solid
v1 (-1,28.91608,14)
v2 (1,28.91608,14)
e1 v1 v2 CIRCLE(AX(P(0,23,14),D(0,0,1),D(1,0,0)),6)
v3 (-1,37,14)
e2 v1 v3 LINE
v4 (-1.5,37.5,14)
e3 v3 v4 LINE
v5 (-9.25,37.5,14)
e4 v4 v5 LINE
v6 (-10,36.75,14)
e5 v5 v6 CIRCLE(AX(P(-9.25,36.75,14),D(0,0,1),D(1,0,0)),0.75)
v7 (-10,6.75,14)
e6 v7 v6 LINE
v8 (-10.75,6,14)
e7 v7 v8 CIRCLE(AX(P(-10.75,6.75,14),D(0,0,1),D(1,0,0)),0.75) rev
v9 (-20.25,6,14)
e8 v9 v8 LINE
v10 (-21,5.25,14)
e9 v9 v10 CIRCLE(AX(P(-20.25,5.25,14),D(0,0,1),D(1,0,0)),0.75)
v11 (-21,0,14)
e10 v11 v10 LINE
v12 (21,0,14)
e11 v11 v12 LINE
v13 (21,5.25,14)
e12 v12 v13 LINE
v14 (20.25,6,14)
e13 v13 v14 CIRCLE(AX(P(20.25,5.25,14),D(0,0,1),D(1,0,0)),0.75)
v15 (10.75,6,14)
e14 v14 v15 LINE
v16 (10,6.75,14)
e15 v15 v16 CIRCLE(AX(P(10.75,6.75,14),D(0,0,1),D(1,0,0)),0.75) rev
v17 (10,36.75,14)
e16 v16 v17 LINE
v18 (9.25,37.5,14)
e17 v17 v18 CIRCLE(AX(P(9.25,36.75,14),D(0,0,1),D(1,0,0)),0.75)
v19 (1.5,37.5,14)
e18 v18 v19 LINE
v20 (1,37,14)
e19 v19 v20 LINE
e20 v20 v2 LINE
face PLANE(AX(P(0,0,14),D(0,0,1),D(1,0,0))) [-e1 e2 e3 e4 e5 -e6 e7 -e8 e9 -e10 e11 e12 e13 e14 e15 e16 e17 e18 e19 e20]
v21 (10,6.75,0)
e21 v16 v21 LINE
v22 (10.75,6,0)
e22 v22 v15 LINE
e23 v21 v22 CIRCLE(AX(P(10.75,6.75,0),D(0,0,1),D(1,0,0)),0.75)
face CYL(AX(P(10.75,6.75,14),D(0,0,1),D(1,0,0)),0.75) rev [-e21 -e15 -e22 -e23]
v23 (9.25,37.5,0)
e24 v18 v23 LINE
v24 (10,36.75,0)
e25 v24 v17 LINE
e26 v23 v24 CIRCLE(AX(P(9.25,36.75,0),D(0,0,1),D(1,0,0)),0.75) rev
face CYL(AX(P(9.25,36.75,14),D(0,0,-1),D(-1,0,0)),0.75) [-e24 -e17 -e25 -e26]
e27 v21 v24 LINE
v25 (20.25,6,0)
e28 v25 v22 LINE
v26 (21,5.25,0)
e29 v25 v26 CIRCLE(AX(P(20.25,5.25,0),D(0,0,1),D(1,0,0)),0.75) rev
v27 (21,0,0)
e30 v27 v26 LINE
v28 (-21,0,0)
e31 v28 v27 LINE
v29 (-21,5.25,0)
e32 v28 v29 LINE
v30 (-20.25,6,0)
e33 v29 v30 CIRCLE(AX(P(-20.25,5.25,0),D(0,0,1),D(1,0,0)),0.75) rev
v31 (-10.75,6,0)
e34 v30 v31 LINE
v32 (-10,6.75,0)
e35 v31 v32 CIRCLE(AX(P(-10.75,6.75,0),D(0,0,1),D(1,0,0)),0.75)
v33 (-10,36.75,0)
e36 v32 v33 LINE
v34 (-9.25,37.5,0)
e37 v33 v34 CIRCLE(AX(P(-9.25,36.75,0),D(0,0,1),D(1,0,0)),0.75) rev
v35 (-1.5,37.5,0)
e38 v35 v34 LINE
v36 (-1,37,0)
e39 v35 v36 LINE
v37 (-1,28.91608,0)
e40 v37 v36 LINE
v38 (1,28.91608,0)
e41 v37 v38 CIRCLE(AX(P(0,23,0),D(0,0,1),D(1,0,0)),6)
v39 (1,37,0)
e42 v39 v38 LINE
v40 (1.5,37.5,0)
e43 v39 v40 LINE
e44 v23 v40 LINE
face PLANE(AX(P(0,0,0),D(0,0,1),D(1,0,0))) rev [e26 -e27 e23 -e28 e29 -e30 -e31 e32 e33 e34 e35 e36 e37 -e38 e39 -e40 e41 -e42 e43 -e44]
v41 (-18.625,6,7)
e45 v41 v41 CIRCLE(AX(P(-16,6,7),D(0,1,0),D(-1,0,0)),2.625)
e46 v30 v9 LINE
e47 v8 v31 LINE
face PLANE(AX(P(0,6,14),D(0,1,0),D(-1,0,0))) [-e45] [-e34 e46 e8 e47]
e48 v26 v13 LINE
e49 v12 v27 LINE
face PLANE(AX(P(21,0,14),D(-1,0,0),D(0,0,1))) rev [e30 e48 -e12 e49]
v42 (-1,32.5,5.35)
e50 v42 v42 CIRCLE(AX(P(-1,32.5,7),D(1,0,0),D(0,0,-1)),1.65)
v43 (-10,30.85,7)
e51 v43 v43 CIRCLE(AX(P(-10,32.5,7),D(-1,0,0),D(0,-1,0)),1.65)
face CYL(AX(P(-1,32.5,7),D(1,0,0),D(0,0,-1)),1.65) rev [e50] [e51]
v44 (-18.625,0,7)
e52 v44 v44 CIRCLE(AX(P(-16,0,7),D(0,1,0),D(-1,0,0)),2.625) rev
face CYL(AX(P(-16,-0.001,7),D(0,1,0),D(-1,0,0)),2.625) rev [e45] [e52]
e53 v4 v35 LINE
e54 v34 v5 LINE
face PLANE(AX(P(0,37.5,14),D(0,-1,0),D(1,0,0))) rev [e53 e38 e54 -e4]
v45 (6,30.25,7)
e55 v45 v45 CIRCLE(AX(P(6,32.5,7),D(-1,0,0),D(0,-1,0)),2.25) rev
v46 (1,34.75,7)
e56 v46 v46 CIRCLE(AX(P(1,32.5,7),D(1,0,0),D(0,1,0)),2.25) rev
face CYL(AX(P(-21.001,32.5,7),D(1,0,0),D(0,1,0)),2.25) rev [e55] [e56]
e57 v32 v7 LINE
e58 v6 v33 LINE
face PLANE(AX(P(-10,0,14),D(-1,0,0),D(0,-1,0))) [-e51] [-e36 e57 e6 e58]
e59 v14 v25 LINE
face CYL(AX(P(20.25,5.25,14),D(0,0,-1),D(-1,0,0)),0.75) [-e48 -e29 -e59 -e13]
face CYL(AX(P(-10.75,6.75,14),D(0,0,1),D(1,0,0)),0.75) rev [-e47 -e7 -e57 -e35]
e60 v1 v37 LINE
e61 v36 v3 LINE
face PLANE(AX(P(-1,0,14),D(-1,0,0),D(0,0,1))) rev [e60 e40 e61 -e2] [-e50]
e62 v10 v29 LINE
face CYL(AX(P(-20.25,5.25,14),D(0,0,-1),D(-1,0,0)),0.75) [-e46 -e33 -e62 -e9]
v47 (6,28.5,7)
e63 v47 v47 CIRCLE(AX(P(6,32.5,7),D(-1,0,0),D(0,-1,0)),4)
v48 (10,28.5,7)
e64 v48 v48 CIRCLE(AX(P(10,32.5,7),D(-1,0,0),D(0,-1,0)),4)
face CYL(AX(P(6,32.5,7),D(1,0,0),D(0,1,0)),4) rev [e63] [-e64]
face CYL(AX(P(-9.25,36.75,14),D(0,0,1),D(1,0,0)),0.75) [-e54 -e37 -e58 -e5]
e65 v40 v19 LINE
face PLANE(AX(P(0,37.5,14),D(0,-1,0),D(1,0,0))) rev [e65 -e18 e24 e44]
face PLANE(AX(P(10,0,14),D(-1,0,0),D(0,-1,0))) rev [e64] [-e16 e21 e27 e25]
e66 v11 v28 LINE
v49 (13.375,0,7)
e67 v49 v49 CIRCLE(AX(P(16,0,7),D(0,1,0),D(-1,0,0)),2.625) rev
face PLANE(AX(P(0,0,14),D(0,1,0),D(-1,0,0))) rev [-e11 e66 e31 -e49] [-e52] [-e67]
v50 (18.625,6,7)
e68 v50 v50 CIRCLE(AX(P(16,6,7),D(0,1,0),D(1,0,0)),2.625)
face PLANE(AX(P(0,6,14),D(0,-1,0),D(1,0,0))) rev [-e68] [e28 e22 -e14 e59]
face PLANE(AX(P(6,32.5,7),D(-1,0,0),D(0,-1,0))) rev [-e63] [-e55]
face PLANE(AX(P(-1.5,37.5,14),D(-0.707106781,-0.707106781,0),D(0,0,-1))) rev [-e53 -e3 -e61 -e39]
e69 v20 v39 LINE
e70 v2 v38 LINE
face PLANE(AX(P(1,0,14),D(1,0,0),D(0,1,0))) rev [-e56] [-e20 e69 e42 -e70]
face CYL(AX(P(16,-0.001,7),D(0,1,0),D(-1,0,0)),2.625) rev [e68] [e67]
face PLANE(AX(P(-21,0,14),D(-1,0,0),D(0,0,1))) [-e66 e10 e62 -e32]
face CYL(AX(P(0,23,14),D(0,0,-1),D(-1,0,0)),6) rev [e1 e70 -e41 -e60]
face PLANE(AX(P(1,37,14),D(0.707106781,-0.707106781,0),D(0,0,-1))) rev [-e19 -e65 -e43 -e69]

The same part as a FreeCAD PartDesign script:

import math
import FreeCAD as App
import Part
import Sketcher
from FreeCAD import Vector
Q = App.Units.Quantity


def edges_at(feature, points):
    """Names of the edges that pass closest to the given points."""
    edges = feature.Shape.Edges
    near = lambda p: min(range(len(edges)), key=lambda i: edges[i].distToShape(Part.Vertex(*p))[0])
    return sorted({f"Edge{near(p) + 1}" for p in points})

doc = App.newDocument("Part")
body = doc.addObject("PartDesign::Body", "Body")

# Sketch on XY plane
sketch1 = body.newObject("Sketcher::SketchObject", "Sketch")
sketch1.AttachmentSupport = (doc.getObject("XY_Plane"), [""])
sketch1.MapMode = "FlatFace"
sketch1.addGeometry([
    Part.LineSegment(Vector(-21, 6, 0), Vector(-21, 0, 0)),  # 0
    Part.LineSegment(Vector(-21, 0, 0), Vector(21, 0, 0)),  # 1
    Part.LineSegment(Vector(21, 0, 0), Vector(21, 6, 0)),  # 2
    Part.LineSegment(Vector(21, 6, 0), Vector(10, 6, 0)),  # 3
    Part.LineSegment(Vector(10, 6, 0), Vector(10, 37.5, 0)),  # 4
    Part.LineSegment(Vector(10, 37.5, 0), Vector(1, 37.5, 0)),  # 5
    Part.LineSegment(Vector(1, 37.5, 0), Vector(1, 28.9, 0)),  # 6
    Part.ArcOfCircle(Part.Circle(Vector(0, 23, 0), Vector(0, 0, 1), 6), math.radians(100), math.radians(440)),  # 7
    Part.LineSegment(Vector(-1, 28.9, 0), Vector(-1, 37.5, 0)),  # 8
    Part.LineSegment(Vector(-1, 37.5, 0), Vector(-10, 37.5, 0)),  # 9
    Part.LineSegment(Vector(-10, 37.5, 0), Vector(-10, 6, 0)),  # 10
    Part.LineSegment(Vector(-10, 6, 0), Vector(-21, 6, 0)),  # 11
], False)
sketch1.addConstraint([
    Sketcher.Constraint("Coincident", 0, 2, 1, 1),
    Sketcher.Constraint("Coincident", 1, 2, 2, 1),
    Sketcher.Constraint("Coincident", 2, 2, 3, 1),
    Sketcher.Constraint("Coincident", 3, 2, 4, 1),
    Sketcher.Constraint("Coincident", 4, 2, 5, 1),
    Sketcher.Constraint("Coincident", 5, 2, 6, 1),
    Sketcher.Constraint("Coincident", 6, 2, 7, 2),
    Sketcher.Constraint("Coincident", 7, 1, 8, 1),
    Sketcher.Constraint("Coincident", 8, 2, 9, 1),
    Sketcher.Constraint("Coincident", 9, 2, 10, 1),
    Sketcher.Constraint("Coincident", 10, 2, 11, 1),
    Sketcher.Constraint("Coincident", 11, 2, 0, 1),
    Sketcher.Constraint("Vertical", 0),
    Sketcher.Constraint("Horizontal", 1),
    Sketcher.Constraint("Vertical", 2),
    Sketcher.Constraint("Horizontal", 3),
    Sketcher.Constraint("Vertical", 4),
    Sketcher.Constraint("Horizontal", 5),
    Sketcher.Constraint("Vertical", 6),
    Sketcher.Constraint("Vertical", 8),
    Sketcher.Constraint("Horizontal", 9),
    Sketcher.Constraint("Vertical", 10),
    Sketcher.Constraint("Horizontal", 11),
    Sketcher.Constraint("Symmetric", 0, 2, 1, 2, -1, 1),
    Sketcher.Constraint("Symmetric", 6, 2, 7, 1, -2),
    Sketcher.Constraint("Symmetric", 4, 2, 9, 2, -2),
    Sketcher.Constraint("Horizontal", 3, 2, 10, 2),
    Sketcher.Constraint("Radius", 7, Q("6 mm")),
    Sketcher.Constraint("DistanceX", 1, 1, 1, 2, Q("42 mm")),
    Sketcher.Constraint("DistanceX", 3, 2, 3, 1, Q("11 mm")),
    Sketcher.Constraint("DistanceX", 5, 2, 5, 1, Q("9 mm")),
    Sketcher.Constraint("DistanceY", 0, 2, 0, 1, Q("6 mm")),
    Sketcher.Constraint("DistanceY", 4, 1, 4, 2, Q("31.5 mm")),
    Sketcher.Constraint("DistanceY", -1, 1, 7, 3, Q("23 mm")),
])
pad1 = body.newObject("PartDesign::Pad", "Pad")
pad1.Profile = sketch1
pad1.Length = 14

# Sketch on XZ plane
sketch2 = body.newObject("Sketcher::SketchObject", "Sketch001")
sketch2.AttachmentSupport = (doc.getObject("XZ_Plane"), [""])
sketch2.MapMode = "FlatFace"
sketch2.AttachmentOffset = App.Placement(Vector(0, 0, -32.5), App.Rotation())
sketch2.addGeometry([
    Part.LineSegment(Vector(-21, 7, 0), Vector(-1, 7, 0)),
    Part.LineSegment(Vector(-1, 7, 0), Vector(-1, 5.3, 0)),
    Part.LineSegment(Vector(-1, 5.3, 0), Vector(-21, 5.3, 0)),
    Part.LineSegment(Vector(-21, 5.3, 0), Vector(-21, 7, 0)),
], False)
sketch2.addGeometry(Part.LineSegment(Vector(-1, 7, 0), Vector(-21, 7, 0)), True)  # axis
sketch2.addConstraint([
    Sketcher.Constraint("Coincident", 0, 2, 1, 1),
    Sketcher.Constraint("Coincident", 1, 2, 2, 1),
    Sketcher.Constraint("Coincident", 2, 2, 3, 1),
    Sketcher.Constraint("Coincident", 3, 2, 0, 1),
    Sketcher.Constraint("Horizontal", 0),
    Sketcher.Constraint("Vertical", 1),
    Sketcher.Constraint("Horizontal", 2),
    Sketcher.Constraint("Vertical", 3),
    Sketcher.Constraint("Horizontal", 4),
    Sketcher.Constraint("Coincident", 4, 1, 0, 2),
    Sketcher.Constraint("Vertical", 2, 2, 4, 2),
    Sketcher.Constraint("DistanceX", 0, 1, 0, 2, Q("20 mm")),
    Sketcher.Constraint("DistanceX", 0, 2, -1, 1, Q("1 mm")),
    Sketcher.Constraint("DistanceY", -1, 1, 0, 2, Q("7 mm")),
    Sketcher.Constraint("DistanceY", 1, 2, 1, 1, Q("1.65 mm")),
])
groove = body.newObject("PartDesign::Groove", "Groove")
groove.Profile = sketch2
groove.ReferenceAxis = (sketch2, ["Axis0"])
groove.Angle = 360

# Sketch on XZ plane
sketch3 = body.newObject("Sketcher::SketchObject", "Sketch002")
sketch3.AttachmentSupport = (doc.getObject("XZ_Plane"), [""])
sketch3.MapMode = "FlatFace"
sketch3.AttachmentOffset = App.Placement(Vector(0, 0, -6), App.Rotation())
sketch3.addGeometry(Part.Circle(Vector(-16, 7, 0), Vector(0, 0, 1), 2.6), False)
sketch3.addConstraint([
    Sketcher.Constraint("Diameter", 0, Q("5.25 mm")),
    Sketcher.Constraint("DistanceX", 0, 3, -1, 1, Q("16 mm")),
    Sketcher.Constraint("DistanceY", -1, 1, 0, 3, Q("7 mm")),
])
pocket1 = body.newObject("PartDesign::Pocket", "Pocket")
pocket1.Profile = sketch3
pocket1.Type = "UpToFirst"
pocket1.Reversed = True

# Sketch on XZ plane
sketch4 = body.newObject("Sketcher::SketchObject", "Sketch003")
sketch4.AttachmentSupport = (doc.getObject("XZ_Plane"), [""])
sketch4.MapMode = "FlatFace"
sketch4.AttachmentOffset = App.Placement(Vector(0, 0, -6), App.Rotation())
sketch4.addGeometry(Part.Circle(Vector(16, 7, 0), Vector(0, 0, 1), 2.6), False)
sketch4.addConstraint([
    Sketcher.Constraint("Diameter", 0, Q("5.25 mm")),
    Sketcher.Constraint("DistanceX", -1, 1, 0, 3, Q("16 mm")),
    Sketcher.Constraint("DistanceY", -1, 1, 0, 3, Q("7 mm")),
])
pocket2 = body.newObject("PartDesign::Pocket", "Pocket001")
pocket2.Profile = sketch4
pocket2.Type = "UpToFirst"
pocket2.Reversed = True
doc.recompute()

fillet = body.newObject("PartDesign::Fillet", "Fillet")
fillet.Base = (pocket2, edges_at(pocket2, [
    (10, 37.5, 7),
    (10, 6, 7),
    (21, 6, 7),
    (-21, 6, 7),
    (-10, 6, 7),
    (-10, 37.5, 7),
]))
fillet.Radius = 0.75
doc.recompute()

chamfer = body.newObject("PartDesign::Chamfer", "Chamfer")
chamfer.Base = (fillet, edges_at(fillet, [(1, 37.5, 7), (-1, 37.5, 7)]))
chamfer.Size = 0.5

# Sketch on YZ plane
sketch5 = body.newObject("Sketcher::SketchObject", "Sketch004")
sketch5.AttachmentSupport = (doc.getObject("YZ_Plane"), [""])
sketch5.MapMode = "FlatFace"
sketch5.AttachmentOffset = App.Placement(Vector(0, 0, 10), App.Rotation())
sketch5.addGeometry(Part.Circle(Vector(32.5, 7, 0), Vector(0, 0, 1), 2.2), False)
sketch5.addConstraint([
    Sketcher.Constraint("Diameter", 0, Q("4.5 mm")),
    Sketcher.Constraint("DistanceY", -1, 1, 0, 3, Q("7 mm")),
    Sketcher.Constraint("DistanceX", -1, 1, 0, 3, Q("32.5 mm")),
])
pocket3 = body.newObject("PartDesign::Pocket", "Pocket002")
pocket3.Profile = sketch5
pocket3.Type = "UpToFirst"

# Sketch on YZ plane
sketch6 = body.newObject("Sketcher::SketchObject", "Sketch005")
sketch6.AttachmentSupport = (doc.getObject("YZ_Plane"), [""])
sketch6.MapMode = "FlatFace"
sketch6.AttachmentOffset = App.Placement(Vector(0, 0, 10), App.Rotation())
sketch6.addGeometry(Part.Circle(Vector(32.5, 7, 0), Vector(0, 0, 1), 4), False)
sketch6.addConstraint([
    Sketcher.Constraint("Diameter", 0, Q("8 mm")),
    Sketcher.Constraint("DistanceY", -1, 1, 0, 3, Q("7 mm")),
    Sketcher.Constraint("DistanceX", -1, 1, 0, 3, Q("32.5 mm")),
])
pocket4 = body.newObject("PartDesign::Pocket", "Pocket003")
pocket4.Profile = sketch6
pocket4.Length = 4

doc.recompute()
